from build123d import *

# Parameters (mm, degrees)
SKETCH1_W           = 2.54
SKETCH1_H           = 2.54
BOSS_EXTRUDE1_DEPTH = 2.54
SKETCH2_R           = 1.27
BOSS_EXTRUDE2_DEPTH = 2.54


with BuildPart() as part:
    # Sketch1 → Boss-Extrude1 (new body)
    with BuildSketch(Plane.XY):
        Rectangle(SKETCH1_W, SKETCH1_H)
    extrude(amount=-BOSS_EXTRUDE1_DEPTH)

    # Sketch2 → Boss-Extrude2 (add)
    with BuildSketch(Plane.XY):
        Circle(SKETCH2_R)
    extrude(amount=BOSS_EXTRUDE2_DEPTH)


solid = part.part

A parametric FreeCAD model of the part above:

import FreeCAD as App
import Part
import Sketcher

V = App.Vector
Q = App.Units.Quantity


def add_polygon(sketch, points):
    """Adds a closed chain of lines whose ends are joined by coincident constraints."""
    first, n = sketch.GeometryCount, len(points)
    for a, b in zip(points, points[1:] + points[:1]):
        sketch.addGeometry(Part.LineSegment(App.Vector(*a, 0), App.Vector(*b, 0)), False)
    for i in range(n):
        sketch.addConstraint(Sketcher.Constraint("Coincident", first + i, 2, first + (i + 1) % n, 1))

doc = App.newDocument("Part")
params = doc.addObject("Spreadsheet::Sheet", "Params")
for row, (alias, value) in enumerate([
    ("sketch1_width", "0.1 in"),
    ("pad1_length", "0.1 in"),
    ("sketch2_diameter", "0.1 in"),
    ("pad2_length", "0.1 in"),
], start=1):
    params.set(f"A{row}", alias)
    params.set(f"B{row}", "=" + value)
    params.setAlias(f"B{row}", alias)

body = doc.addObject("PartDesign::Body", "Body")

sketch1 = body.newObject("Sketcher::SketchObject", "Sketch")
sketch1.AttachmentSupport = (doc.getObject("XY_Plane"), [""])
sketch1.MapMode = "FlatFace"
add_polygon(sketch1, [(-1.3, 1.3), (-1.3, -1.3), (1.3, -1.3), (1.3, 1.3)])
sketch1.addConstraint(Sketcher.Constraint("Vertical", 0))
sketch1.addConstraint(Sketcher.Constraint("Horizontal", 1))
sketch1.addConstraint(Sketcher.Constraint("Vertical", 2))
sketch1.addConstraint(Sketcher.Constraint("Horizontal", 3))
sketch1.addConstraint(Sketcher.Constraint("Symmetric", 0, 2, 2, 2, -1, 1))
sketch1.addConstraint(Sketcher.Constraint("Equal", 3, 0))
sketch1.addConstraint(Sketcher.Constraint("DistanceX", 1, 1, 1, 2, Q("0.1 in")))
sketch1.setExpression("Constraints[10]", "Params.sketch1_width")
pad1 = body.newObject("PartDesign::Pad", "Pad")
pad1.Profile = sketch1
pad1.setExpression("Length", "Params.pad1_length")
pad1.Reversed = True

sketch2 = body.newObject("Sketcher::SketchObject", "Sketch001")
sketch2.AttachmentSupport = (doc.getObject("XY_Plane"), [""])
sketch2.MapMode = "FlatFace"
sketch2.addGeometry(Part.Circle(V(0, 0, 0), V(0, 0, 1), 1.3), False)
sketch2.addConstraint(Sketcher.Constraint("Coincident", 0, 3, -1, 1))
sketch2.addConstraint(Sketcher.Constraint("Diameter", 0, Q("0.1 in")))
sketch2.setExpression("Constraints[1]", "Params.sketch2_diameter")
pad2 = body.newObject("PartDesign::Pad", "Pad001")
pad2.Profile = sketch2
pad2.setExpression("Length", "Params.pad2_length")

doc.recompute()
